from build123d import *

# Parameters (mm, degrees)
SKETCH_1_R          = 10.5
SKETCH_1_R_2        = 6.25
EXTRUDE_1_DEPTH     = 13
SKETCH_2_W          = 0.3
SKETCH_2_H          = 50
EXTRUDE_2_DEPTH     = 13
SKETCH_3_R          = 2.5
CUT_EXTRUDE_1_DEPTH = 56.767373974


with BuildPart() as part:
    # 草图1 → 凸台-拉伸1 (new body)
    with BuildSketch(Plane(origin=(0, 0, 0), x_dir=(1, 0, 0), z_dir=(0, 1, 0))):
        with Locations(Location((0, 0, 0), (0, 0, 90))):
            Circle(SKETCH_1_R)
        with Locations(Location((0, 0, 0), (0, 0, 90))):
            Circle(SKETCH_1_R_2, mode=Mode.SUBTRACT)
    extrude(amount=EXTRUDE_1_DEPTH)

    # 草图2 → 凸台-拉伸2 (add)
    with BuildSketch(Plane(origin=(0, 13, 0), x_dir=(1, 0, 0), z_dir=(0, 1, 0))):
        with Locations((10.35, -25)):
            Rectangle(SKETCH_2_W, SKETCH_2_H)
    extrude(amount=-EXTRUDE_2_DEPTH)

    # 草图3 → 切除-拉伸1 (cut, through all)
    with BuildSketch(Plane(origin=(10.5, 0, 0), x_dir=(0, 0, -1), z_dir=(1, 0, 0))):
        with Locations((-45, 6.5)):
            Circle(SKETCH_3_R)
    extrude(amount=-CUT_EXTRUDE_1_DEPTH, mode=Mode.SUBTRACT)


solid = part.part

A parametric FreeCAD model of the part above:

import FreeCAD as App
import Part
import Sketcher

V = App.Vector

doc = App.newDocument("Part")
body = doc.addObject("PartDesign::Body", "Body")

sketch1 = doc.addObject("Sketcher::SketchObject", "Sketch")
body.addObject(sketch1)
sketch1.AttachmentSupport = (doc.XZ_Plane, [""])
sketch1.MapMode = "FlatFace"
sketch1.addGeometry([
    Part.Circle(V(0, 0, 0), V(0, 0, 1), 10),
    Part.Circle(V(0, 0, 0), V(0, 0, 1), 6),
], False)
sketch1.addConstraint([
    Sketcher.Constraint("Coincident", 0, 3, -1, 1),
    Sketcher.Constraint("Coincident", 1, 3, -1, 1),
    Sketcher.Constraint("Diameter", 0, 21.0),
    Sketcher.Constraint("Diameter", 1, 12.5),
])
pad1 = doc.addObject("PartDesign::Pad", "Pad")
body.addObject(pad1)
pad1.Profile = sketch1
pad1.Length = 13
pad1.Reversed = True

sketch2 = doc.addObject("Sketcher::SketchObject", "Sketch001")
body.addObject(sketch2)
sketch2.AttachmentSupport = (doc.XZ_Plane, [""])
sketch2.MapMode = "FlatFace"
sketch2.AttachmentOffset = App.Placement(V(0, 0, -13), App.Rotation())
sketch2.addGeometry([
    Part.LineSegment(V(10.2, 0, 0), V(10.2, 50, 0)),
    Part.LineSegment(V(10.2, 50, 0), V(10.5, 50, 0)),
    Part.LineSegment(V(10.5, 50, 0), V(10.5, 0, 0)),
    Part.LineSegment(V(10.5, 0, 0), V(10.2, 0, 0)),
], False)
sketch2.addConstraint([
    Sketcher.Constraint("Coincident", 0, 2, 1, 1),
    Sketcher.Constraint("Coincident", 1, 2, 2, 1),
    Sketcher.Constraint("Coincident", 2, 2, 3, 1),
    Sketcher.Constraint("Coincident", 3, 2, 0, 1),
    Sketcher.Constraint("Vertical", 0),
    Sketcher.Constraint("Horizontal", 1),
    Sketcher.Constraint("Vertical", 2),
    Sketcher.Constraint("Horizontal", 3),
    Sketcher.Constraint("PointOnObject", 2, 2, -1),
    Sketcher.Constraint("DistanceY", 0, 1, 0, 2, 50.0),
    Sketcher.Constraint("DistanceX", 1, 1, 1, 2, 0.3),
    Sketcher.Constraint("DistanceX", -1, 1, 0, 2, 10.2),
])
pad2 = doc.addObject("PartDesign::Pad", "Pad001")
body.addObject(pad2)
pad2.Profile = sketch2
pad2.Length = 13

sketch3 = doc.addObject("Sketcher::SketchObject", "Sketch002")
body.addObject(sketch3)
sketch3.AttachmentSupport = (doc.YZ_Plane, [""])
sketch3.MapMode = "FlatFace"
sketch3.AttachmentOffset = App.Placement(V(0, 0, 10.5), App.Rotation())
sketch3.addGeometry(Part.Circle(V(6.5, 45, 0), V(0, 0, 1), 2.5), False)
sketch3.addConstraint([
    Sketcher.Constraint("Diameter", 0, 5.0),
    Sketcher.Constraint("DistanceY", -1, 1, 0, 3, 45.0),
    Sketcher.Constraint("DistanceX", -1, 1, 0, 3, 6.5),
])
pocket1 = doc.addObject("PartDesign::Pocket", "Pocket")
body.addObject(pocket1)
pocket1.Profile = sketch3
pocket1.Type = "ThroughAll"

doc.recompute()
